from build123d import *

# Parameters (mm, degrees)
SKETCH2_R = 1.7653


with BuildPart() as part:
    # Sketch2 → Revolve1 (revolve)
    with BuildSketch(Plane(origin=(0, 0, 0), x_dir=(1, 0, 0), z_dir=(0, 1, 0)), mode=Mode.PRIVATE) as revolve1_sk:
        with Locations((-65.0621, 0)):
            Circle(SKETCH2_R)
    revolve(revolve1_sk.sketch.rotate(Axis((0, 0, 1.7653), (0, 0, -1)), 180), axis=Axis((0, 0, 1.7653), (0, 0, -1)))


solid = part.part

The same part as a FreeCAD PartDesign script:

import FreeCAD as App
import Part
import Sketcher
from FreeCAD import Vector
Q = App.Units.Quantity

doc = App.newDocument("Part")
body = doc.addObject("PartDesign::Body", "Body")

sketch1 = body.newObject("Sketcher::SketchObject", "Sketch")
sketch1.AttachmentSupport = (doc.getObject("XZ_Plane"), [""])
sketch1.MapMode = "FlatFace"
sketch1.addGeometry(Part.Circle(Vector(-65.0621, 0, 0), Vector(0, 0, 1), 1.7653), False)
sketch1.addConstraint(Sketcher.Constraint("PointOnObject", 0, 3, -1))
sketch1.addConstraint(Sketcher.Constraint("Diameter", 0, Q("0.139 in")))
sketch1.addConstraint(Sketcher.Constraint("DistanceX", 0, 3, -1, 1, Q("2.5615 in")))
revolution = body.newObject("PartDesign::Revolution", "Revolution")
revolution.Profile = sketch1
revolution.ReferenceAxis = (sketch1, ["V_Axis"])
revolution.Angle = 360

doc.recompute()
